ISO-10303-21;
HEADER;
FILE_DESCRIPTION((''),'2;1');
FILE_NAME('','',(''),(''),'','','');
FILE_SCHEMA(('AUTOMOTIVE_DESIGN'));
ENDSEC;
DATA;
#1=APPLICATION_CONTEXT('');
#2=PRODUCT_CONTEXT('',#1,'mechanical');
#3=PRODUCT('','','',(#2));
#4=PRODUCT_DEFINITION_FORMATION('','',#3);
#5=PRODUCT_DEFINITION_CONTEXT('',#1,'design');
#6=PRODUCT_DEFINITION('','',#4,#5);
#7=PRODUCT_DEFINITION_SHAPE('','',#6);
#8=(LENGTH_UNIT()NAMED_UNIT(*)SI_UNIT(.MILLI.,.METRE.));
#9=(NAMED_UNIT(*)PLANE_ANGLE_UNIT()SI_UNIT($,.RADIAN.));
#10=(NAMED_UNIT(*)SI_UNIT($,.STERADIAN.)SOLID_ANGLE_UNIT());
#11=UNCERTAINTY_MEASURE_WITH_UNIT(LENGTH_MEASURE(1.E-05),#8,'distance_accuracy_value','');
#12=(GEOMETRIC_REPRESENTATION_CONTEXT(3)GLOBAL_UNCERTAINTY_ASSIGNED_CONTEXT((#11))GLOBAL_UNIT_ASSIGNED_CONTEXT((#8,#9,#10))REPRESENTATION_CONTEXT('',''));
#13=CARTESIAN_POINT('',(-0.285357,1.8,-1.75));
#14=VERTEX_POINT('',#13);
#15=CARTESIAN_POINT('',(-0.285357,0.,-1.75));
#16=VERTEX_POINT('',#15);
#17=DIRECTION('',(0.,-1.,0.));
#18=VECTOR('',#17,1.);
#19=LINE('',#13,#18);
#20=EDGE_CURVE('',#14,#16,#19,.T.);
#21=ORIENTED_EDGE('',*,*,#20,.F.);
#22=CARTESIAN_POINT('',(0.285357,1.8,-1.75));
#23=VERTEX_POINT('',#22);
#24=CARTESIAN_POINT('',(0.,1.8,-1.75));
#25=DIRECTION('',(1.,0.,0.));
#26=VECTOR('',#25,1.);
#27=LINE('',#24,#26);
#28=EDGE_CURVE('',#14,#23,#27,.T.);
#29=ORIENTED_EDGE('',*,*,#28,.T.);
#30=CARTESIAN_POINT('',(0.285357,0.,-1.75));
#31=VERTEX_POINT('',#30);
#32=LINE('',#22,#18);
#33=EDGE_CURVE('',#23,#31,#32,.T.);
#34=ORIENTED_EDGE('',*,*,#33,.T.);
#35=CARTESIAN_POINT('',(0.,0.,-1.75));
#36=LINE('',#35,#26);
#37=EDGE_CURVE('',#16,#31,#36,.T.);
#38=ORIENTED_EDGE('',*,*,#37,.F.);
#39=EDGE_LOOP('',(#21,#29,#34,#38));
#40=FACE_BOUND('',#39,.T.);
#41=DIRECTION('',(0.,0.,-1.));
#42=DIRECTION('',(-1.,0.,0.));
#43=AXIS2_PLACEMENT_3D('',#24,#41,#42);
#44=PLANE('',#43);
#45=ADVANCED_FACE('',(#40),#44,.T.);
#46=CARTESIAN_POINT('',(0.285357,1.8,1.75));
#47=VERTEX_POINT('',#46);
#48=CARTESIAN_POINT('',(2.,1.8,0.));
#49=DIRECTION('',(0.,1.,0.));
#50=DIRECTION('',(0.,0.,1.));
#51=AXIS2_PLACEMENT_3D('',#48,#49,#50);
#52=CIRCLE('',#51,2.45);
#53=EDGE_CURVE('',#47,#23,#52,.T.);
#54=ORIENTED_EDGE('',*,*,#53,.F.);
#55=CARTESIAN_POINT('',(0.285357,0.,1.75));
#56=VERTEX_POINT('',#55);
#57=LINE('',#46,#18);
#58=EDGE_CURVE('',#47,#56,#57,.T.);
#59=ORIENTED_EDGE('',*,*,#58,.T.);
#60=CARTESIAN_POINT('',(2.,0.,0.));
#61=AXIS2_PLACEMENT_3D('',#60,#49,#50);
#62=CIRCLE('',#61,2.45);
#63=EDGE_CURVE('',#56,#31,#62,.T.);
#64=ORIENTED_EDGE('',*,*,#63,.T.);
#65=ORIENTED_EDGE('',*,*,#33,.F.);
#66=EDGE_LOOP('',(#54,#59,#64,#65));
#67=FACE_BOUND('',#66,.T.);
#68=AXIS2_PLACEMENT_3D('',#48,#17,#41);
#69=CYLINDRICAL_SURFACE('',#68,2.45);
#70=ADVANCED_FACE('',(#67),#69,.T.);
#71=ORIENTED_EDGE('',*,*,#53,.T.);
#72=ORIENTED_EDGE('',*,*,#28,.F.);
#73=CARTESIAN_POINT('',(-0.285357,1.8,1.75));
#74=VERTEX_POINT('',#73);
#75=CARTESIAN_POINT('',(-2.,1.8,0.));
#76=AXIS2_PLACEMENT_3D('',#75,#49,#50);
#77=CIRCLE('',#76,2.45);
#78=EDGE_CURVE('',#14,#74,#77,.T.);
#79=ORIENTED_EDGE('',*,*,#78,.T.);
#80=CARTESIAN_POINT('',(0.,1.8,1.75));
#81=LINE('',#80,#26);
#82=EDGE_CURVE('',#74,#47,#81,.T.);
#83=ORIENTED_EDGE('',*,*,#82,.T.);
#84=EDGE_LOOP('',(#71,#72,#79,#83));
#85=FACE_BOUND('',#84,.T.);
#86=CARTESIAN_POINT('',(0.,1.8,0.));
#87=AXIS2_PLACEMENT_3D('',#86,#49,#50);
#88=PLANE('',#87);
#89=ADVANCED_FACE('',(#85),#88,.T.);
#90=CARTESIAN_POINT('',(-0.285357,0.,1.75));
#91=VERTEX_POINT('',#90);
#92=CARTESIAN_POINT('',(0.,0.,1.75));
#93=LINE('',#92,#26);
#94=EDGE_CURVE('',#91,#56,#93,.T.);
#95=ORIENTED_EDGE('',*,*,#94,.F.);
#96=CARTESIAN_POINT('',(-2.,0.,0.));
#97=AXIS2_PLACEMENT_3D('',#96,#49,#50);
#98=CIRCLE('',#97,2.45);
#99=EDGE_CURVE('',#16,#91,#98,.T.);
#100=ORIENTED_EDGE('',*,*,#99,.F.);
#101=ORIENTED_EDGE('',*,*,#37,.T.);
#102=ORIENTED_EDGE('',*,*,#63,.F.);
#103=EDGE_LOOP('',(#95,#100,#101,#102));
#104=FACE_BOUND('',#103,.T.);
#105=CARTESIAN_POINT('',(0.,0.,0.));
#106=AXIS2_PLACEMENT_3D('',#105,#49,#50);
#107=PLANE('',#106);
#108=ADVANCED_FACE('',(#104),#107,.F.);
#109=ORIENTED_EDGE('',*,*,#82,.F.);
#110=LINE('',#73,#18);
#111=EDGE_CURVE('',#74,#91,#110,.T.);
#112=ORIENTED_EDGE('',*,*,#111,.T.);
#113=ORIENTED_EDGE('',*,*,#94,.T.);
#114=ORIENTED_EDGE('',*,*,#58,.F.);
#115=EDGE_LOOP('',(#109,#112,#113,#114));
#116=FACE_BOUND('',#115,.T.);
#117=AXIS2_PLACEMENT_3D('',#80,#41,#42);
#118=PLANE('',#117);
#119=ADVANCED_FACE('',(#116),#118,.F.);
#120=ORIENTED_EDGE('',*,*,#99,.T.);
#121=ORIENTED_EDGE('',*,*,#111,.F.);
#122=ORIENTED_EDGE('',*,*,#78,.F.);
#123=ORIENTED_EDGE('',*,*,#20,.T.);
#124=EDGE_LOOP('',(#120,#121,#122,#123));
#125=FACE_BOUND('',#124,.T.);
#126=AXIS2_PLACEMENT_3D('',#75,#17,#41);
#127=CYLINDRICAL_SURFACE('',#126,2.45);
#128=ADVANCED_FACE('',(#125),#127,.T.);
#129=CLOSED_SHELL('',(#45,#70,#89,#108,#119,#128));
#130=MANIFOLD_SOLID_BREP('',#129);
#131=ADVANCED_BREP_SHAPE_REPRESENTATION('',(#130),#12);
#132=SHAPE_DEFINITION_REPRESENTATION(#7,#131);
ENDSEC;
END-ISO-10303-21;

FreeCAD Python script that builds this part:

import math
import FreeCAD as App
import Part
import Sketcher

V = App.Vector

doc = App.newDocument("Part")
body = doc.addObject("PartDesign::Body", "Body")

# Sketch on XZ plane
sketch1 = doc.addObject("Sketcher::SketchObject", "Sketch")
body.addObject(sketch1)
sketch1.AttachmentSupport = (doc.XZ_Plane, [""])
sketch1.MapMode = "FlatFace"
sketch1.addGeometry(Part.LineSegment(V(-0.3, 1.8, 0), V(0.3, 1.8, 0)), False)
sketch1.addGeometry(Part.ArcOfCircle(Part.Circle(V(2, 0, 0), V(0, 0, 1), 2.5), math.radians(-134), math.radians(134)), False)
sketch1.addGeometry(Part.LineSegment(V(0.3, -1.8, 0), V(-0.3, -1.8, 0)), False)
sketch1.addGeometry(Part.ArcOfCircle(Part.Circle(V(-2, 0, 0), V(0, 0, 1), 2.5), math.radians(46), math.radians(314)), False)
sketch1.addConstraint(Sketcher.Constraint("Coincident", 0, 2, 1, 2))
sketch1.addConstraint(Sketcher.Constraint("Coincident", 1, 1, 2, 1))
sketch1.addConstraint(Sketcher.Constraint("Coincident", 2, 2, 3, 2))
sketch1.addConstraint(Sketcher.Constraint("Coincident", 3, 1, 0, 1))
sketch1.addConstraint(Sketcher.Constraint("Horizontal", 0))
sketch1.addConstraint(Sketcher.Constraint("Horizontal", 2))
sketch1.addConstraint(Sketcher.Constraint("Equal", 1, 3))
sketch1.addConstraint(Sketcher.Constraint("Symmetric", 1, 3, 3, 3, -1, 1))
sketch1.addConstraint(Sketcher.Constraint("Symmetric", 0, 2, 1, 1, -1))
sketch1.addConstraint(Sketcher.Constraint("Radius", 1, 2.45))
sketch1.addConstraint(Sketcher.Constraint("DistanceX", -1, 1, 1, 3, 2.0))
sketch1.addConstraint(Sketcher.Constraint("DistanceY", 1, 1, 0, 2, 3.5))
pad1 = doc.addObject("PartDesign::Pad", "Pad")
body.addObject(pad1)
pad1.Profile = sketch1
pad1.Length = 1.8
pad1.Reversed = True

doc.recompute()
